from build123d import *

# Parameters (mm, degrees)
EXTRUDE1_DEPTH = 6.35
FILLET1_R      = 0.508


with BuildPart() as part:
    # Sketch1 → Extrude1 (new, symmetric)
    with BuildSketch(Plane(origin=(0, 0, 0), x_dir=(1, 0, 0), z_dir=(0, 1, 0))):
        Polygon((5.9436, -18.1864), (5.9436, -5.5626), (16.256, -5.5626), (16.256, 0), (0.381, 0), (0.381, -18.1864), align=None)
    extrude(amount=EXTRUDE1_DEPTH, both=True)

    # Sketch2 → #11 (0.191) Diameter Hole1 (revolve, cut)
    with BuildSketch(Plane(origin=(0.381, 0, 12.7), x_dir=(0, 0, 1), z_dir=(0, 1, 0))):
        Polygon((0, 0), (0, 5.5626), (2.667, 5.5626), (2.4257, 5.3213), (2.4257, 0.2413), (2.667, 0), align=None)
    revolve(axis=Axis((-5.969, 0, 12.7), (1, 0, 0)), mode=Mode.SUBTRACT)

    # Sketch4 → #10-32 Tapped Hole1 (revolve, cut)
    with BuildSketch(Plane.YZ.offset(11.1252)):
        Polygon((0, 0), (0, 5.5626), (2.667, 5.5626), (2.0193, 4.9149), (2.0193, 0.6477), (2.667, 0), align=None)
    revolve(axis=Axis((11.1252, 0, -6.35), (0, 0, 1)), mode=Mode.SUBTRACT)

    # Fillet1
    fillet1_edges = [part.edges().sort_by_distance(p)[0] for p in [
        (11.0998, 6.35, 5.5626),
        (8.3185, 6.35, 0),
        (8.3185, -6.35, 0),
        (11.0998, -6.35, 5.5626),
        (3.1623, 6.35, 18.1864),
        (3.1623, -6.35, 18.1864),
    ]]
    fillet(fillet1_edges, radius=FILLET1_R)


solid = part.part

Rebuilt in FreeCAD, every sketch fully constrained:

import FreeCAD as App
import Part
import Sketcher

V = App.Vector
Q = App.Units.Quantity


def edges_at(feature, points):
    """Names of the edges that pass closest to the given points."""
    edges = feature.Shape.Edges
    near = lambda p: min(range(len(edges)), key=lambda i: edges[i].distToShape(Part.Vertex(*p))[0])
    return sorted({f"Edge{near(p) + 1}" for p in points})


def add_polygon(sketch, points):
    """Adds a closed chain of lines whose ends are joined by coincident constraints."""
    first, n = sketch.GeometryCount, len(points)
    for a, b in zip(points, points[1:] + points[:1]):
        sketch.addGeometry(Part.LineSegment(App.Vector(*a, 0), App.Vector(*b, 0)), False)
    for i in range(n):
        sketch.addConstraint(Sketcher.Constraint("Coincident", first + i, 2, first + (i + 1) % n, 1))

doc = App.newDocument("Part")
params = doc.addObject("Spreadsheet::Sheet", "Params")
for row, (alias, value) in enumerate([
    ("sketch1_width", "0.406 in"),
    ("sketch1_width2", "0.625 in"),
    ("sketch1_height", "0.497 in"),
    ("pad1_length", "0.5 in"),
    ("sketch2_width", "0.2 in"),
    ("sketch2_width2", "0.219 in"),
    ("sketch2_height", "0.105 in"),
    ("groove_angle", "360 deg"),
    ("sketch3_width", "0.105 in"),
    ("sketch3_height", "0.219 in"),
    ("sketch3_height2", "0.168 in"),
    ("groove2_angle", "360 deg"),
    ("fillet_radius", "0.02 in"),
], start=1):
    params.set(f"A{row}", alias)
    params.set(f"B{row}", "=" + value)
    params.setAlias(f"B{row}", alias)

body = doc.addObject("PartDesign::Body", "Body")

sketch1 = body.newObject("Sketcher::SketchObject", "Sketch")
sketch1.AttachmentSupport = (doc.getObject("XZ_Plane"), [""])
sketch1.MapMode = "FlatFace"
add_polygon(sketch1, [(6, 18), (6, 6), (16, 6), (16, 0), (0, 0), (0, 18)])
sketch1.addConstraint([
    Sketcher.Constraint("Vertical", 0),
    Sketcher.Constraint("Horizontal", 1),
    Sketcher.Constraint("Vertical", 2),
    Sketcher.Constraint("Horizontal", 3),
    Sketcher.Constraint("Vertical", 4),
    Sketcher.Constraint("Horizontal", 5),
    Sketcher.Constraint("PointOnObject", 2, 2, -1),
    Sketcher.Constraint("Equal", 5, 2),
    Sketcher.Constraint("DistanceX", 1, 1, 1, 2, Q("0.406 in")),
    Sketcher.Constraint("DistanceX", 3, 2, 3, 1, Q("0.625 in")),
    Sketcher.Constraint("DistanceY", 0, 2, 0, 1, Q("0.497 in")),
    Sketcher.Constraint("DistanceX", -1, 1, 1, 2, Q("0.64 in")),
])
sketch1.setExpression("Constraints[14]", "Params.sketch1_width")
sketch1.setExpression("Constraints[15]", "Params.sketch1_width2")
sketch1.setExpression("Constraints[16]", "Params.sketch1_height")
pad1 = body.newObject("PartDesign::Pad", "Pad")
pad1.Profile = sketch1
pad1.setExpression("Length", "Params.pad1_length")
pad1.Midplane = True

sketch2 = body.newObject("Sketcher::SketchObject", "Sketch001")
sketch2.AttachmentSupport = (doc.getObject("XZ_Plane"), [""])
sketch2.MapMode = "FlatFace"
add_polygon(sketch2, [(5.94, 12.7), (0.38, 12.7), (0.38, 15.37), (0.62, 15.13), (5.7, 15.13), (5.94, 15.37)])
sketch2.addGeometry(Part.LineSegment(V(0.38, 12.7, 0), V(5.94, 12.7, 0)), True)
sketch2.addConstraint([
    Sketcher.Constraint("Horizontal", 0),
    Sketcher.Constraint("Vertical", 1),
    Sketcher.Constraint("Horizontal", 3),
    Sketcher.Constraint("Vertical", 5),
    Sketcher.Constraint("Horizontal", 6),
    Sketcher.Constraint("Coincident", 6, 1, 0, 2),
    Sketcher.Constraint("Perpendicular", 2, 4),
    Sketcher.Constraint("Horizontal", 1, 2, 4, 2),
    Sketcher.Constraint("Vertical", 4, 2, 6, 2),
    Sketcher.Constraint("Equal", 2, 4),
    Sketcher.Constraint("DistanceX", 3, 1, 3, 2, Q("0.2 in")),
    Sketcher.Constraint("DistanceY", -1, 1, 0, 2, Q("0.5 in")),
    Sketcher.Constraint("DistanceX", 0, 2, 0, 1, Q("0.219 in")),
    Sketcher.Constraint("DistanceY", 1, 1, 1, 2, Q("0.105 in")),
    Sketcher.Constraint("DistanceX", -1, 1, 0, 2, Q("0.015 in")),
])
sketch2.setExpression("Constraints[16]", "Params.sketch2_width")
sketch2.setExpression("Constraints[18]", "Params.sketch2_width2")
sketch2.setExpression("Constraints[19]", "Params.sketch2_height")
groove = body.newObject("PartDesign::Groove", "Groove")
groove.Profile = sketch2
groove.ReferenceAxis = (sketch2, ["Axis0"])
groove.setExpression("Angle", "Params.groove_angle")

sketch3 = body.newObject("Sketcher::SketchObject", "Sketch002")
sketch3.AttachmentSupport = (doc.getObject("YZ_Plane"), [""])
sketch3.MapMode = "FlatFace"
sketch3.AttachmentOffset = App.Placement(V(0, 0, 0.438 * 25.4), App.Rotation())
add_polygon(sketch3, [(0, 5.6), (0, 0), (2.7, 0), (2, 0.6), (2, 4.9), (2.7, 5.6)])
sketch3.addConstraint([
    Sketcher.Constraint("Vertical", 0),
    Sketcher.Constraint("Horizontal", 1),
    Sketcher.Constraint("Vertical", 3),
    Sketcher.Constraint("Horizontal", 5),
    Sketcher.Constraint("Coincident", 0, 2, -1, 1),
    Sketcher.Constraint("Perpendicular", 2, 4),
    Sketcher.Constraint("Vertical", 1, 2, 4, 2),
    Sketcher.Constraint("Equal", 2, 4),
    Sketcher.Constraint("DistanceX", 1, 1, 1, 2, Q("0.105 in")),
    Sketcher.Constraint("DistanceY", 0, 2, 0, 1, Q("0.219 in")),
    Sketcher.Constraint("DistanceY", 3, 1, 3, 2, Q("0.168 in")),
])
sketch3.setExpression("Constraints[14]", "Params.sketch3_width")
sketch3.setExpression("Constraints[15]", "Params.sketch3_height")
sketch3.setExpression("Constraints[16]", "Params.sketch3_height2")
groove2 = body.newObject("PartDesign::Groove", "Groove001")
groove2.Profile = sketch3
groove2.ReferenceAxis = (sketch3, ["V_Axis"])
groove2.setExpression("Angle", "Params.groove2_angle")
doc.recompute()

fillet = body.newObject("PartDesign::Fillet", "Fillet")
fillet.Base = (groove2, edges_at(groove2, [
    (11.1, 6.35, 5.563),
    (8.319, 6.35, 0),
    (8.319, -6.35, 0),
    (11.1, -6.35, 5.563),
    (3.162, 6.35, 18.186),
    (3.162, -6.35, 18.186),
]))
fillet.setExpression("Radius", "Params.fillet_radius")

doc.recompute()
